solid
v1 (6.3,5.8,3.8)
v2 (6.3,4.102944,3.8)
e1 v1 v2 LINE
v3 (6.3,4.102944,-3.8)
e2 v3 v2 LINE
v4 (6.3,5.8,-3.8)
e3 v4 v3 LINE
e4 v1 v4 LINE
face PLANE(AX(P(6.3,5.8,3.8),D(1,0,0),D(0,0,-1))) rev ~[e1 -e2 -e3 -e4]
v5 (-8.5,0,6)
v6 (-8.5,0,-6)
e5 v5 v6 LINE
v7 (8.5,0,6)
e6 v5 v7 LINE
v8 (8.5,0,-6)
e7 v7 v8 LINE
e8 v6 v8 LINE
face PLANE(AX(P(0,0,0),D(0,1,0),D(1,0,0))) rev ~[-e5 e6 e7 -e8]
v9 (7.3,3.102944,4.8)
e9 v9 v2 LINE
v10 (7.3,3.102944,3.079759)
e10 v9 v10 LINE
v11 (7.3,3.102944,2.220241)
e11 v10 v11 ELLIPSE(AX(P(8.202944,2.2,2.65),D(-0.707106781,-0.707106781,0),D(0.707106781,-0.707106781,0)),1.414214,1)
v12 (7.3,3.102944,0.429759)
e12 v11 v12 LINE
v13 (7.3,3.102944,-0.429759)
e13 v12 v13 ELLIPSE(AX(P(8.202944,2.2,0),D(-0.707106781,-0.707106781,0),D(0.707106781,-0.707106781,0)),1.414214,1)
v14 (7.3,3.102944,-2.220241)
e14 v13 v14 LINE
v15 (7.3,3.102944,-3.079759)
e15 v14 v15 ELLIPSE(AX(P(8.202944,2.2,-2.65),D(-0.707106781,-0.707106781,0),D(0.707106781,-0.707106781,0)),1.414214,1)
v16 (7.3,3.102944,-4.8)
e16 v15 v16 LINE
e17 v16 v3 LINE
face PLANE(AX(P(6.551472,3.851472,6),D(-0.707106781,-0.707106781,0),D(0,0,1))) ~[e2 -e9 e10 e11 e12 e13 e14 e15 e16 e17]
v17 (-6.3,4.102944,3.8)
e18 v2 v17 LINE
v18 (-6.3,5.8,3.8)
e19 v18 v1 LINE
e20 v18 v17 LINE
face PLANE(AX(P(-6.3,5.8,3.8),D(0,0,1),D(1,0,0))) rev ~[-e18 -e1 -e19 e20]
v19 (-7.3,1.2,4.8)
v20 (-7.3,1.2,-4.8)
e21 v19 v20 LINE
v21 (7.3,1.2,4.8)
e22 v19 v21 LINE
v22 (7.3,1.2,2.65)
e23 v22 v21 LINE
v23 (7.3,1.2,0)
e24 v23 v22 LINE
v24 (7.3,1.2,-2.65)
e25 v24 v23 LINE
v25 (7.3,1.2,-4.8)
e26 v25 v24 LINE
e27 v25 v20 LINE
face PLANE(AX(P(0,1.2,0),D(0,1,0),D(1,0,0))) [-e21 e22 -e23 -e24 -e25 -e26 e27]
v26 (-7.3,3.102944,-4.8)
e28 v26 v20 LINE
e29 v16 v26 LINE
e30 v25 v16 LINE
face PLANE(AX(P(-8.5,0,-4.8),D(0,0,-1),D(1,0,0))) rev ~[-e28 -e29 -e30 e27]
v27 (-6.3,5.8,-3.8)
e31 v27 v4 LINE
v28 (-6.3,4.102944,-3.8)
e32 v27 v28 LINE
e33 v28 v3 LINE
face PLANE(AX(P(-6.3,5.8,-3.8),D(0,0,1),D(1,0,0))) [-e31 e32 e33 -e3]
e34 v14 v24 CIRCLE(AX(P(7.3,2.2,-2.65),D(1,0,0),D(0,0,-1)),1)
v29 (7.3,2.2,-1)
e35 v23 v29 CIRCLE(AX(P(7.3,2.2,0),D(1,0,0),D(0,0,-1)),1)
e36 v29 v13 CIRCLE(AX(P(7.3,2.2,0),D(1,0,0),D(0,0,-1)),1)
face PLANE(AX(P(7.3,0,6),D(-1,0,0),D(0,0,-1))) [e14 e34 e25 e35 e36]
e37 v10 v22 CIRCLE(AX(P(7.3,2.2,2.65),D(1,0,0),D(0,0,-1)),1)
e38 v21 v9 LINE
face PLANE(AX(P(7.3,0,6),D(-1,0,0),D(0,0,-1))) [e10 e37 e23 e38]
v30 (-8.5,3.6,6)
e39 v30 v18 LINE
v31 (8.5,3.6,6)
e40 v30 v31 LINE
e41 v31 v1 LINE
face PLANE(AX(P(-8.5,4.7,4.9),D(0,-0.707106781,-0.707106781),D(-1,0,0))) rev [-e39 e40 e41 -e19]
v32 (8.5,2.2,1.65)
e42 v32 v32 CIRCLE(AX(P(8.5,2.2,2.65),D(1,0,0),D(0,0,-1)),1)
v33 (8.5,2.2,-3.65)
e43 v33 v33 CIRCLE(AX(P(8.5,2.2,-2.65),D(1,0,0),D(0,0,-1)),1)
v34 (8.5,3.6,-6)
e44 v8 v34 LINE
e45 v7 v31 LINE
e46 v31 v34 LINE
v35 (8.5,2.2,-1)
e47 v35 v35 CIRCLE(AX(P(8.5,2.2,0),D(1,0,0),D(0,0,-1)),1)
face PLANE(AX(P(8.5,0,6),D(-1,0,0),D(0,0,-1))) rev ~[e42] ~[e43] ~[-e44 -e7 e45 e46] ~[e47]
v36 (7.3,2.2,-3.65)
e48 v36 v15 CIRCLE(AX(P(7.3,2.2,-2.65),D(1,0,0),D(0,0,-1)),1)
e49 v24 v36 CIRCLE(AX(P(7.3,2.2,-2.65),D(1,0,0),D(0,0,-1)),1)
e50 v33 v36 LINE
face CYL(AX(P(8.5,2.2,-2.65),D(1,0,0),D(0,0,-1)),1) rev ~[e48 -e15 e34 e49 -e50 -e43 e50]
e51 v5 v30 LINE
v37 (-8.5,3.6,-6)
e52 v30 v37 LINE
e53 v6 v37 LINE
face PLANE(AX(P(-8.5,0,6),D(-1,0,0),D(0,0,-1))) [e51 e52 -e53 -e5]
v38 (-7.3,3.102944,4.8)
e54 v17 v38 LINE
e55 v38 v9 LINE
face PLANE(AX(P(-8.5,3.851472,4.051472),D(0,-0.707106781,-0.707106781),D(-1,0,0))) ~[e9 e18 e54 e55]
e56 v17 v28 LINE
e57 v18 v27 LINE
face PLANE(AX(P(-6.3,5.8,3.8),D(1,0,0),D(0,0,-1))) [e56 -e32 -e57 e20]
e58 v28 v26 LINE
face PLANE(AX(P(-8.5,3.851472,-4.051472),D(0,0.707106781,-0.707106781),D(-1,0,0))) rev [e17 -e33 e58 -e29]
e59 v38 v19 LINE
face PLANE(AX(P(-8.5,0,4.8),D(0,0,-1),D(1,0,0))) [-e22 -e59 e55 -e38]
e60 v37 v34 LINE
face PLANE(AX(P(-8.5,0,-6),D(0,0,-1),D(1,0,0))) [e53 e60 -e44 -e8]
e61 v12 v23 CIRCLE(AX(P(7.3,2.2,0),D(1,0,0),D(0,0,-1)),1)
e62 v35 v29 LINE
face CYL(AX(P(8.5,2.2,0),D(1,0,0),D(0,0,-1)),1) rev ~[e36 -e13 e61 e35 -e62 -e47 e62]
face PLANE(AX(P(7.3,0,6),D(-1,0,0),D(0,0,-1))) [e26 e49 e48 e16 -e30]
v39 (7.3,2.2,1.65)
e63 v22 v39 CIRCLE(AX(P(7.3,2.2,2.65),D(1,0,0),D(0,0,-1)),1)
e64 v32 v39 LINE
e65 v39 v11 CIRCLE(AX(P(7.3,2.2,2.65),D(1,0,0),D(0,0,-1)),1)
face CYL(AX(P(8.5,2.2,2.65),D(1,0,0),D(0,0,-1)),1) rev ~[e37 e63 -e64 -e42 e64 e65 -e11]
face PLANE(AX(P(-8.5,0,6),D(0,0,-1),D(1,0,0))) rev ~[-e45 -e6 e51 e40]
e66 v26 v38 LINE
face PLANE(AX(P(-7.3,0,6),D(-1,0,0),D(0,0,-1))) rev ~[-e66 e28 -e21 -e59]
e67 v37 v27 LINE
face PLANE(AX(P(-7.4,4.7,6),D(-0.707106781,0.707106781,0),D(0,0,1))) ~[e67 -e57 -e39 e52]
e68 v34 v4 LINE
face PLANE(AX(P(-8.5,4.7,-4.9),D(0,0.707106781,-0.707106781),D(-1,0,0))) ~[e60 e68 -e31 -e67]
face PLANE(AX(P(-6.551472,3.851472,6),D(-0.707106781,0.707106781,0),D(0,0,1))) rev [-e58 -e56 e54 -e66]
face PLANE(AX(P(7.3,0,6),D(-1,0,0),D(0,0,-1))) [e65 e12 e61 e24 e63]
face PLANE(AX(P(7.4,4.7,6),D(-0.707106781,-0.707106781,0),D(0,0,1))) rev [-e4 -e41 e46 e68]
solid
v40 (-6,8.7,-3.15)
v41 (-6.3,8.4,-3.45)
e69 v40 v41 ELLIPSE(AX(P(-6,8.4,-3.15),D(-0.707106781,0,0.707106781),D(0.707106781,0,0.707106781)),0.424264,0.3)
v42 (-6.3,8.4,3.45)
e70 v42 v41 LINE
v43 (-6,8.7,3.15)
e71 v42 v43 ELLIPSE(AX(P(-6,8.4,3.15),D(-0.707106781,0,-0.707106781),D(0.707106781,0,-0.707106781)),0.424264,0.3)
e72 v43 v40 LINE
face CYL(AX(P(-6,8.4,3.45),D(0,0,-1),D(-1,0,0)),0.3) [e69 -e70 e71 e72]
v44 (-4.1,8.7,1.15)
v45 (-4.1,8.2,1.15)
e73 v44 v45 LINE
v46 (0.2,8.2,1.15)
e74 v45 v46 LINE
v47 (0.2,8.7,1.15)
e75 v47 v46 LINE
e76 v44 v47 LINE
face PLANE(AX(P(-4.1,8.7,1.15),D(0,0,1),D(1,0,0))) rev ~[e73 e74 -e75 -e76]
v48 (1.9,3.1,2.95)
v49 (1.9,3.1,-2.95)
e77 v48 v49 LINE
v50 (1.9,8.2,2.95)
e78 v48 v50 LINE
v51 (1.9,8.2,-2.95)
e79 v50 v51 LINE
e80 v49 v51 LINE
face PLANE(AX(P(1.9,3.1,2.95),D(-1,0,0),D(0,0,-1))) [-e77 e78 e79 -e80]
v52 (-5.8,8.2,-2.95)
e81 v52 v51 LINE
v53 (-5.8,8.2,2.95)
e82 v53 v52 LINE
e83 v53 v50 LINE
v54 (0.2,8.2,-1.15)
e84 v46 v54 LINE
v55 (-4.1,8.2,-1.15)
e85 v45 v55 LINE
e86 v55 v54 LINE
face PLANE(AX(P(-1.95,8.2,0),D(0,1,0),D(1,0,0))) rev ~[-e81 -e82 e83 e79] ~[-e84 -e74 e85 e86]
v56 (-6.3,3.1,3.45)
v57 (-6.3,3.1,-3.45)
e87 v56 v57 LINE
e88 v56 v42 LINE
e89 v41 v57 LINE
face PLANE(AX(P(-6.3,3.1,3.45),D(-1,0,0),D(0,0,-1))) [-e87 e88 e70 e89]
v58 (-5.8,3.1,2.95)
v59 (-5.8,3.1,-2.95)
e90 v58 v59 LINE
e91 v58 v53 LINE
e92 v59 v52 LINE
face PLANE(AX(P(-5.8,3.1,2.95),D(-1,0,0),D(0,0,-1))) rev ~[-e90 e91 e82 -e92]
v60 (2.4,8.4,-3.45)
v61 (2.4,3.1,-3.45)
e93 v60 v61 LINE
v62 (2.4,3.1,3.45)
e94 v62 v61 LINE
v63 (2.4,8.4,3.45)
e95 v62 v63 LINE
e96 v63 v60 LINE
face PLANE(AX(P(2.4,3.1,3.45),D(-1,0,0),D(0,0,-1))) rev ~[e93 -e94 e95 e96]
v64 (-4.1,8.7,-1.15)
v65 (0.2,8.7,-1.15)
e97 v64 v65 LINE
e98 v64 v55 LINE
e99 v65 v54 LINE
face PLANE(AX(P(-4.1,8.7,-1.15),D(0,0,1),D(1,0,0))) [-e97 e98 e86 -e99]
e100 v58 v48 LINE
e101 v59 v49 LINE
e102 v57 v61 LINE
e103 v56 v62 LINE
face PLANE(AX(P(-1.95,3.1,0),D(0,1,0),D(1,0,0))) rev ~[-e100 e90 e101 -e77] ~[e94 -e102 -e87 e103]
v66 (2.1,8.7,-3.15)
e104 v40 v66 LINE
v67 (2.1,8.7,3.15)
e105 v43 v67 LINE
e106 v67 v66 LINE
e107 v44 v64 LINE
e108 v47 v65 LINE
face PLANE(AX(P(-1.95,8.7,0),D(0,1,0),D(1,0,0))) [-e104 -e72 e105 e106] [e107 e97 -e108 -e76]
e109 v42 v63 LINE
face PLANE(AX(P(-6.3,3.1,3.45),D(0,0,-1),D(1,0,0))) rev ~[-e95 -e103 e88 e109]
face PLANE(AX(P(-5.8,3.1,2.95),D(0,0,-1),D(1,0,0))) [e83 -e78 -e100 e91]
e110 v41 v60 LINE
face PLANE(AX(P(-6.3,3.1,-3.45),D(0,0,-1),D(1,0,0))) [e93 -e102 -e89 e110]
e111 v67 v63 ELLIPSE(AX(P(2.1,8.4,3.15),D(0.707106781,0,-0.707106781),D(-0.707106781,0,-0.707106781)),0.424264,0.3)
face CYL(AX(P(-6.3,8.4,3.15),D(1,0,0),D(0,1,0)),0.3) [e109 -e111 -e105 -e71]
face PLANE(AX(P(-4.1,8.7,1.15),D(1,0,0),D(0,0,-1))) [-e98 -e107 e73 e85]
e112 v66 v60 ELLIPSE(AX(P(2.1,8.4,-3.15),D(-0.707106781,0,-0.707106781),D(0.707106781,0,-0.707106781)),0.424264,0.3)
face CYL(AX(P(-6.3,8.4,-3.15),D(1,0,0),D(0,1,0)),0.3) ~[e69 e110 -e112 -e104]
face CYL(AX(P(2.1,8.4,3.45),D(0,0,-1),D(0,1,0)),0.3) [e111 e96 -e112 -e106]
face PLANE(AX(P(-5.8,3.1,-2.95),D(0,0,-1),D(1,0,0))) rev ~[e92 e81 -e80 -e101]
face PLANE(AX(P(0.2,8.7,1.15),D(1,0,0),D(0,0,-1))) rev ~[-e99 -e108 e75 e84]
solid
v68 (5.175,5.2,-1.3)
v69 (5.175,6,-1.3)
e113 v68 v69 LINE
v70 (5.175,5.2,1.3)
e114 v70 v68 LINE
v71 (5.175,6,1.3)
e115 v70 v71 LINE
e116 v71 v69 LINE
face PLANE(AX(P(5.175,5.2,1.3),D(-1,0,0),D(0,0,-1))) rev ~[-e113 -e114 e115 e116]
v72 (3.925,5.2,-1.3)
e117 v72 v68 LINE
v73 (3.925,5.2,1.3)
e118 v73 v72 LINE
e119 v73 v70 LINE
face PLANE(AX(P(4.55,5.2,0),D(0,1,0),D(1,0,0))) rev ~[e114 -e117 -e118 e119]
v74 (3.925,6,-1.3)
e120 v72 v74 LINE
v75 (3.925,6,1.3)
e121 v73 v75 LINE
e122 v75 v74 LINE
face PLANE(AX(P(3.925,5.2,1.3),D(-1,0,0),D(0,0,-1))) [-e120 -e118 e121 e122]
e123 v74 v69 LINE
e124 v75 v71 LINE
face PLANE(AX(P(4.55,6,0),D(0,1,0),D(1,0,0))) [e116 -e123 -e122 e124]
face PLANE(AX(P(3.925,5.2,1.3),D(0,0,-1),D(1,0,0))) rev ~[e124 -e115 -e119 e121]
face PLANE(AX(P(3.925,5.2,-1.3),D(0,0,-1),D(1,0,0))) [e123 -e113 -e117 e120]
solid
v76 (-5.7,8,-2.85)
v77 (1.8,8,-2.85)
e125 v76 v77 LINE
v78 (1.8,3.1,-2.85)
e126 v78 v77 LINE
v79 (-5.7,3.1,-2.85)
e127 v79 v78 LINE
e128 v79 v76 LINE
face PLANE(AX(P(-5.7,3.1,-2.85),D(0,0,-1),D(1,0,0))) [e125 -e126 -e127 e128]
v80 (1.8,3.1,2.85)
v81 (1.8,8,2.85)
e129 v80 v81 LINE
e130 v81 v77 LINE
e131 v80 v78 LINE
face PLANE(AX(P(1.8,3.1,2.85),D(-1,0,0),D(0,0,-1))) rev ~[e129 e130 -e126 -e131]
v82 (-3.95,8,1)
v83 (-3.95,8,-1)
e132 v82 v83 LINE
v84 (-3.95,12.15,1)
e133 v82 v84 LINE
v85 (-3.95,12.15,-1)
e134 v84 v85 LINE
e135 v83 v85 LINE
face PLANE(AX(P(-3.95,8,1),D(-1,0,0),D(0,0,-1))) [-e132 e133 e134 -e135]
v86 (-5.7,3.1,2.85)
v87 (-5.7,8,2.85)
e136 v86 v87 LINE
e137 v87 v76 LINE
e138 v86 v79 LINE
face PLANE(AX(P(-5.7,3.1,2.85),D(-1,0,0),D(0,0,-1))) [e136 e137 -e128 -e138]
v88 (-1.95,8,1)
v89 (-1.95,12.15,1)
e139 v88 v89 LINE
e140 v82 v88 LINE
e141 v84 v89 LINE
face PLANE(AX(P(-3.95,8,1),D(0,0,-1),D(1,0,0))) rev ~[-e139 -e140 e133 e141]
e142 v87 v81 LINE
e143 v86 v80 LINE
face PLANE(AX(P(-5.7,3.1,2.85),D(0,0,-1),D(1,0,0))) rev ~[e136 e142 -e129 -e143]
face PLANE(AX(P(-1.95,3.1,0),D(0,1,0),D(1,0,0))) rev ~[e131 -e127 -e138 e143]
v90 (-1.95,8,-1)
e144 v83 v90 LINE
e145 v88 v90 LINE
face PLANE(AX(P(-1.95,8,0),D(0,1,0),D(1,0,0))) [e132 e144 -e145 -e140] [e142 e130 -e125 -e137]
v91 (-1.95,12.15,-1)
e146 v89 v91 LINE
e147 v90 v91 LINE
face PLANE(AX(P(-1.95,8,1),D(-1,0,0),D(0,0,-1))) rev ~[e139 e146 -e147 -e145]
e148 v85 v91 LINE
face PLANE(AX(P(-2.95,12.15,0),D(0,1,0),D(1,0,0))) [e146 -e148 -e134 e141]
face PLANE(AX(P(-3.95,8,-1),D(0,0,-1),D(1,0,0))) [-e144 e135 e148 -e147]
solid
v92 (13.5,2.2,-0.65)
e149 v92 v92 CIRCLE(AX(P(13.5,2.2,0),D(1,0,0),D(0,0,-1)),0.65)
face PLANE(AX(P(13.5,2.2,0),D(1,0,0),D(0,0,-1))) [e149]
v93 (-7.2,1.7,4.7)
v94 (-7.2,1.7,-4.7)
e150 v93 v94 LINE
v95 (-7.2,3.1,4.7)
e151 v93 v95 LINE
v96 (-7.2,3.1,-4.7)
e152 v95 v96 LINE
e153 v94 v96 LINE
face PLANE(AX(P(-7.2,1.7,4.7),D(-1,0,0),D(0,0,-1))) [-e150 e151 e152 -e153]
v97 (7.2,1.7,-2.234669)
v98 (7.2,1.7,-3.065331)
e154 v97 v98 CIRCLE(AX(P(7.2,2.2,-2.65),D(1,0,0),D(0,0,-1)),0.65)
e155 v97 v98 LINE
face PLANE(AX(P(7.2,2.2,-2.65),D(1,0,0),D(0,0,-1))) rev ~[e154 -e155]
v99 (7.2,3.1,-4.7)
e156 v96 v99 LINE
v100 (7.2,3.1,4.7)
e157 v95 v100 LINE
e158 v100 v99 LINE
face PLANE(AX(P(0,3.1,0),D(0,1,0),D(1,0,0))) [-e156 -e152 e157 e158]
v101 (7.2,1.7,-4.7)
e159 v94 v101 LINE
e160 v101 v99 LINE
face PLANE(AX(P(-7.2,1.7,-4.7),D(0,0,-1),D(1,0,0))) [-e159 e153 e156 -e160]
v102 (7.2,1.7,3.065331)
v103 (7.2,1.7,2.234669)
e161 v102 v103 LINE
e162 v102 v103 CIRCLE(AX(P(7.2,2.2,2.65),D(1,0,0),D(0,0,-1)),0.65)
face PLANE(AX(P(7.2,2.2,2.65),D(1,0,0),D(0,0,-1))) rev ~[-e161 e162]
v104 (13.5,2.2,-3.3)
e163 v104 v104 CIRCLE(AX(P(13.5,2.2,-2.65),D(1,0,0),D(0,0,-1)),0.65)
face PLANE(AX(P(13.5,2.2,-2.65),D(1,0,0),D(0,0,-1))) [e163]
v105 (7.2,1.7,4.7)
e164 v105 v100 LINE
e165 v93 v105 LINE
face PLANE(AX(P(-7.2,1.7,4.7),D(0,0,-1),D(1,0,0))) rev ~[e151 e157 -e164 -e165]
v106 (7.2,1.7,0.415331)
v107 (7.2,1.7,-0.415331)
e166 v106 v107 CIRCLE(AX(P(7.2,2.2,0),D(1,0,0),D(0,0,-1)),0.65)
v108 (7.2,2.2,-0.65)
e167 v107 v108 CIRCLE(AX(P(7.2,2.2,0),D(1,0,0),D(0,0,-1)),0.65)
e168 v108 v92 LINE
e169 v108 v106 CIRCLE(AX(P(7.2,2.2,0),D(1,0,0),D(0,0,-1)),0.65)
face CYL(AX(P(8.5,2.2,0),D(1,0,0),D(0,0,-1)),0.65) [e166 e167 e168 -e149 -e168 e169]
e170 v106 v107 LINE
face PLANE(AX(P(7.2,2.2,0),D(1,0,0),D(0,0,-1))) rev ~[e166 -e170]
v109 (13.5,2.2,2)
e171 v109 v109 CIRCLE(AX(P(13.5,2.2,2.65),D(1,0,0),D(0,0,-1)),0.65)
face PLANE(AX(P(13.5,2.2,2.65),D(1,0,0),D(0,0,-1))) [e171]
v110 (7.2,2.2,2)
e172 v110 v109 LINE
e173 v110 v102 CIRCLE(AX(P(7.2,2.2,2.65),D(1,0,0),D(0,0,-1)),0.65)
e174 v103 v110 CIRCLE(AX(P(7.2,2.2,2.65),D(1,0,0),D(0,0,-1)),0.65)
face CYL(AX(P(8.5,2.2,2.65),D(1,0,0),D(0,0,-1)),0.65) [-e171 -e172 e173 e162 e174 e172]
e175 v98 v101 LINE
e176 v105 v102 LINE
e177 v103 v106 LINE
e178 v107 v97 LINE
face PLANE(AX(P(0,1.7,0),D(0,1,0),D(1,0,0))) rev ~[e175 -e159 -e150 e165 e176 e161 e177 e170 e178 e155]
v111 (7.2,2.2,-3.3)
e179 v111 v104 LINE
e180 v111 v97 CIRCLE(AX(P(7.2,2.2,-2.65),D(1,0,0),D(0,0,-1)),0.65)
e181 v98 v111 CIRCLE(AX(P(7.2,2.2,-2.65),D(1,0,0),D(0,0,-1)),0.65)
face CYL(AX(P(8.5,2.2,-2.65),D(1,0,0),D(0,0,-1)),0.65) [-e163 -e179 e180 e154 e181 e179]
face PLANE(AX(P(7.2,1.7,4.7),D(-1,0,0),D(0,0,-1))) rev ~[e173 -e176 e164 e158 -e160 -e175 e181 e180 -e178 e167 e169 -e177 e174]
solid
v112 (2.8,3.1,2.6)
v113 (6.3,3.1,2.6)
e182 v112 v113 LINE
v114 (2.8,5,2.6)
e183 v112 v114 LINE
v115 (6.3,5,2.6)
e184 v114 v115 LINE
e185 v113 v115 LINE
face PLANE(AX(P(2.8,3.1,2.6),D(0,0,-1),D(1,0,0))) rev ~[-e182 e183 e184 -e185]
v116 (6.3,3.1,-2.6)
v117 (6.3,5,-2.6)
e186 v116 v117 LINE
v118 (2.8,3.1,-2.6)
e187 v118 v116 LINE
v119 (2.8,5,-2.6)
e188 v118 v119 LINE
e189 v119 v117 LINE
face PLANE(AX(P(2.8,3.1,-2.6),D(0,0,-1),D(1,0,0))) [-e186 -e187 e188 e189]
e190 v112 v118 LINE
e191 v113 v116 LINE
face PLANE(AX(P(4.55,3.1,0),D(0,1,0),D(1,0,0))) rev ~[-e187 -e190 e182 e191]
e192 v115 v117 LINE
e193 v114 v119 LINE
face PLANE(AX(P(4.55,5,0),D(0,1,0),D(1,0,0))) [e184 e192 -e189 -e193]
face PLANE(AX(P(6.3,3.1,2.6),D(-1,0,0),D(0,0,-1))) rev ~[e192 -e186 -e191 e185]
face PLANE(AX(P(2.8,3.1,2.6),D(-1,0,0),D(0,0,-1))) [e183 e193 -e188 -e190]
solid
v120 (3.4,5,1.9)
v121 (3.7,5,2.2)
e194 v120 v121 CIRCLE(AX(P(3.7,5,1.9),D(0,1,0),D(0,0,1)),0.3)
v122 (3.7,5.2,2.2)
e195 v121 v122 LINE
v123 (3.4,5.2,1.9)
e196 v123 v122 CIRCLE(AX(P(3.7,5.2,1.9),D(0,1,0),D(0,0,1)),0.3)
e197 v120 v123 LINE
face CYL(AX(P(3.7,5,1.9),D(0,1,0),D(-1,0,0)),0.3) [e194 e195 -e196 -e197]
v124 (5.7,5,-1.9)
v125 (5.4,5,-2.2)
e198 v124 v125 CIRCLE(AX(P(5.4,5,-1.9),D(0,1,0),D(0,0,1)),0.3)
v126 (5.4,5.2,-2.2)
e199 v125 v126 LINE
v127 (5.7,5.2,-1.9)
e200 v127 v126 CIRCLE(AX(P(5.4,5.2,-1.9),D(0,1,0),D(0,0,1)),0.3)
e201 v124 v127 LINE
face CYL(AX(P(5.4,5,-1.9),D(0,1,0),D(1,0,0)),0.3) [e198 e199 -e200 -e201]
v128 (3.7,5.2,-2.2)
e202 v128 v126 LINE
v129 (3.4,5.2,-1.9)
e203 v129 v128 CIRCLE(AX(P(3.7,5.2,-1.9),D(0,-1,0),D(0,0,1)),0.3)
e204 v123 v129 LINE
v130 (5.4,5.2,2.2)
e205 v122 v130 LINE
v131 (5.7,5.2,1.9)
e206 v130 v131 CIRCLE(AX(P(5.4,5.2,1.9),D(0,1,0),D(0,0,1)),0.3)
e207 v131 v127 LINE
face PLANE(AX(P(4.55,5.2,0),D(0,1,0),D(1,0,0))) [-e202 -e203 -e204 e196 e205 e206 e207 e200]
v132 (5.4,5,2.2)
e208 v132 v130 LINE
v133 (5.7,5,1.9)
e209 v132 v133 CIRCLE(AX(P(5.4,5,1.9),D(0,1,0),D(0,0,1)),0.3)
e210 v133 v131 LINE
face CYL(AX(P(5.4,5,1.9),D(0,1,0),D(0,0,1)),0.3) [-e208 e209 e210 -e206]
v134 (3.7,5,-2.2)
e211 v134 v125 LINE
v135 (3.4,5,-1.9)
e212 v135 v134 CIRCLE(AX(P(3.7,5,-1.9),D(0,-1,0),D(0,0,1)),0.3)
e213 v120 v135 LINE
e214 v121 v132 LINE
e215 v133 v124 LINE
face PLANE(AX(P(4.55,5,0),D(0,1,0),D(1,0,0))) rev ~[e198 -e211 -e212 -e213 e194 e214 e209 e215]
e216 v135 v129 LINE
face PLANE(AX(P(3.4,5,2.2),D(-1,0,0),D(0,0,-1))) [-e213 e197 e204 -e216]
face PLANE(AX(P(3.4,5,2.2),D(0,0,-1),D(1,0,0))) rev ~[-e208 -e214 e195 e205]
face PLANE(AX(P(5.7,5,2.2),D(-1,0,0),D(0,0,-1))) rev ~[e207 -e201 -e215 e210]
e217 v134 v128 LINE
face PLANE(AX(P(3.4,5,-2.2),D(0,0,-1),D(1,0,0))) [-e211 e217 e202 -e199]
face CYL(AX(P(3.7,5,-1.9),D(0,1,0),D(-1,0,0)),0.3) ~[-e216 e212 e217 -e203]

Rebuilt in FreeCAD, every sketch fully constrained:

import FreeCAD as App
import Part
import Sketcher

V = App.Vector


def edges_at(feature, points):
    """Names of the edges that pass closest to the given points."""
    edges = feature.Shape.Edges
    near = lambda p: min(range(len(edges)), key=lambda i: edges[i].distToShape(Part.Vertex(*p))[0])
    return sorted({f"Edge{near(p) + 1}" for p in points})


def faces_at(feature, points):
    """Names of the faces that lie closest to the given points."""
    faces = feature.Shape.Faces
    near = lambda p: min(range(len(faces)), key=lambda i: faces[i].distToShape(Part.Vertex(*p))[0])
    return sorted({f"Face{near(p) + 1}" for p in points})

doc = App.newDocument("Part")
params = doc.addObject("Spreadsheet::Sheet", "Params")
for row, (alias, value) in enumerate([
    ("sketch1_width", "17 mm"),
    ("sketch1_height", "12 mm"),
    ("pad1_length", "5.8 mm"),
    ("chamfer_size", "2.2 mm"),
    ("thickness_wall", "1.2 mm"),
    ("sketch2_width", "12.6 mm"),
    ("sketch2_height", "7.6 mm"),
    ("sketch3_diameter", "2 mm"),
    ("pocket2_length", "1.3 mm"),
    ("sketch4_width", "14.4 mm"),
    ("sketch4_height", "9.4 mm"),
    ("pad2_length", "1.4 mm"),
    ("sketch5_diameter", "1.3 mm"),
    ("pad3_length", "5 mm"),
    ("pad3_length2", "1.3 mm"),
    ("sketch6_width", "8.7 mm"),
    ("sketch6_width2", "7.7 mm"),
    ("sketch6_height", "6.9 mm"),
    ("sketch6_height2", "5.9 mm"),
    ("pad4_length", "5.6 mm"),
    ("sketch7_width", "8.7 mm"),
    ("sketch7_width2", "4.3 mm"),
    ("sketch7_height", "6.9 mm"),
    ("sketch7_height2", "2.3 mm"),
    ("pad5_length", "0.5 mm"),
    ("fillet_radius", "0.3 mm"),
    ("sketch8_width", "3.5 mm"),
    ("sketch8_height", "5.2 mm"),
    ("pad6_length", "1.9 mm"),
    ("sketch9_width", "2.3 mm"),
    ("sketch9_height", "4.4 mm"),
    ("pad7_length", "0.2 mm"),
    ("fillet2_radius", "0.3 mm"),
    ("sketch10_height", "2.6 mm"),
    ("sketch10_width", "1.25 mm"),
    ("pad8_length", "0.8 mm"),
    ("sketch11_width", "7.5 mm"),
    ("sketch11_height", "5.7 mm"),
    ("pad9_length", "4.9 mm"),
    ("sketch12_width", "2 mm"),
    ("pad10_length", "4.15 mm"),
], start=1):
    params.set(f"A{row}", alias)
    params.set(f"B{row}", "=" + value)
    params.setAlias(f"B{row}", alias)

body = doc.addObject("PartDesign::Body", "Body")

# Sketch on XZ plane
sketch1 = body.newObject("Sketcher::SketchObject", "Sketch")
sketch1.AttachmentSupport = (doc.getObject("XZ_Plane"), [""])
sketch1.MapMode = "FlatFace"
sketch1.addGeometry([
    Part.LineSegment(V(-8.5, -6, 0), V(-8.5, 6, 0)),
    Part.LineSegment(V(-8.5, 6, 0), V(8.5, 6, 0)),
    Part.LineSegment(V(8.5, 6, 0), V(8.5, -6, 0)),
    Part.LineSegment(V(8.5, -6, 0), V(-8.5, -6, 0)),
], False)
sketch1.addConstraint([
    Sketcher.Constraint("Coincident", 0, 2, 1, 1),
    Sketcher.Constraint("Coincident", 1, 2, 2, 1),
    Sketcher.Constraint("Coincident", 2, 2, 3, 1),
    Sketcher.Constraint("Coincident", 3, 2, 0, 1),
    Sketcher.Constraint("Vertical", 0),
    Sketcher.Constraint("Horizontal", 1),
    Sketcher.Constraint("Vertical", 2),
    Sketcher.Constraint("Horizontal", 3),
    Sketcher.Constraint("Symmetric", 0, 2, 2, 2, -1, 1),
    Sketcher.Constraint("DistanceX", 1, 1, 1, 2, 17.0),
    Sketcher.Constraint("DistanceY", 0, 1, 0, 2, 12.0),
])
sketch1.setExpression("Constraints[9]", "Params.sketch1_width")
sketch1.setExpression("Constraints[10]", "Params.sketch1_height")
pad1 = body.newObject("PartDesign::Pad", "Pad")
pad1.Profile = sketch1
pad1.setExpression("Length", "Params.pad1_length")
pad1.Reversed = True
doc.recompute()

chamfer = body.newObject("PartDesign::Chamfer", "Chamfer")
chamfer.Base = (pad1, edges_at(pad1, [
    (8.5, 5.8, 0),
    (0, 5.8, -6),
    (-8.5, 5.8, 0),
    (0, 5.8, 6),
]))
chamfer.setExpression("Size", "Params.chamfer_size")
doc.recompute()

thickness = body.newObject("PartDesign::Thickness", "Thickness")
thickness.Base = (chamfer, faces_at(chamfer, [(0, 5.8, 0)]))
thickness.setExpression("Value", "Params.thickness_wall")
thickness.Reversed = True
thickness.Join = "Intersection"

# Sketch on XZ plane
sketch2 = body.newObject("Sketcher::SketchObject", "Sketch001")
sketch2.AttachmentSupport = (doc.getObject("XZ_Plane"), [""])
sketch2.MapMode = "FlatFace"
sketch2.AttachmentOffset = App.Placement(V(0, 0, -5.8), App.Rotation())
sketch2.addGeometry([
    Part.LineSegment(V(-6.3, -3.8, 0), V(-6.3, 3.8, 0)),
    Part.LineSegment(V(-6.3, 3.8, 0), V(6.3, 3.8, 0)),
    Part.LineSegment(V(6.3, 3.8, 0), V(6.3, -3.8, 0)),
    Part.LineSegment(V(6.3, -3.8, 0), V(-6.3, -3.8, 0)),
], False)
sketch2.addConstraint([
    Sketcher.Constraint("Coincident", 0, 2, 1, 1),
    Sketcher.Constraint("Coincident", 1, 2, 2, 1),
    Sketcher.Constraint("Coincident", 2, 2, 3, 1),
    Sketcher.Constraint("Coincident", 3, 2, 0, 1),
    Sketcher.Constraint("Vertical", 0),
    Sketcher.Constraint("Horizontal", 1),
    Sketcher.Constraint("Vertical", 2),
    Sketcher.Constraint("Horizontal", 3),
    Sketcher.Constraint("Symmetric", 0, 2, 2, 2, -1, 1),
    Sketcher.Constraint("DistanceX", 1, 1, 1, 2, 12.6),
    Sketcher.Constraint("DistanceY", 0, 1, 0, 2, 7.6),
])
sketch2.setExpression("Constraints[9]", "Params.sketch2_width")
sketch2.setExpression("Constraints[10]", "Params.sketch2_height")
pocket1 = body.newObject("PartDesign::Pocket", "Pocket")
pocket1.Profile = sketch2
pocket1.Type = "UpToFirst"
pocket1.Reversed = True

# Sketch on YZ plane
sketch3 = body.newObject("Sketcher::SketchObject", "Sketch002")
sketch3.AttachmentSupport = (doc.getObject("YZ_Plane"), [""])
sketch3.MapMode = "FlatFace"
sketch3.AttachmentOffset = App.Placement(V(0, 0, 8.5), App.Rotation())
sketch3.addGeometry([
    Part.Circle(V(2.2, 2.65, 0), V(0, 0, 1), 1),
    Part.Circle(V(2.2, 0, 0), V(0, 0, 1), 1),
    Part.Circle(V(2.2, -2.65, 0), V(0, 0, 1), 1),
], False)
sketch3.addConstraint([
    Sketcher.Constraint("Equal", 0, 1),
    Sketcher.Constraint("Equal", 1, 2),
    Sketcher.Constraint("Symmetric", 0, 3, 2, 3, -1),
    Sketcher.Constraint("PointOnObject", 1, 3, -1),
    Sketcher.Constraint("Vertical", 0, 3, 1, 3),
    Sketcher.Constraint("Diameter", 0, 2.0),
    Sketcher.Constraint("DistanceX", -1, 1, 0, 3, 2.2),
    Sketcher.Constraint("DistanceY", 2, 3, 0, 3, 5.3),
])
sketch3.setExpression("Constraints[5]", "Params.sketch3_diameter")
pocket2 = body.newObject("PartDesign::Pocket", "Pocket001")
pocket2.Profile = sketch3
pocket2.setExpression("Length", "Params.pocket2_length")
body2 = doc.addObject("PartDesign::Body", "Body001")

# Sketch on XZ plane
sketch4 = body2.newObject("Sketcher::SketchObject", "Sketch003")
sketch4.AttachmentSupport = (doc.getObject("XZ_Plane001"), [""])
sketch4.MapMode = "FlatFace"
sketch4.AttachmentOffset = App.Placement(V(0, 0, -1.7), App.Rotation())
sketch4.addGeometry([
    Part.LineSegment(V(-7.2, -4.7, 0), V(-7.2, 4.7, 0)),
    Part.LineSegment(V(-7.2, 4.7, 0), V(7.2, 4.7, 0)),
    Part.LineSegment(V(7.2, 4.7, 0), V(7.2, -4.7, 0)),
    Part.LineSegment(V(7.2, -4.7, 0), V(-7.2, -4.7, 0)),
], False)
sketch4.addConstraint([
    Sketcher.Constraint("Coincident", 0, 2, 1, 1),
    Sketcher.Constraint("Coincident", 1, 2, 2, 1),
    Sketcher.Constraint("Coincident", 2, 2, 3, 1),
    Sketcher.Constraint("Coincident", 3, 2, 0, 1),
    Sketcher.Constraint("Vertical", 0),
    Sketcher.Constraint("Horizontal", 1),
    Sketcher.Constraint("Vertical", 2),
    Sketcher.Constraint("Horizontal", 3),
    Sketcher.Constraint("Symmetric", 0, 2, 2, 2, -1, 1),
    Sketcher.Constraint("DistanceX", 1, 1, 1, 2, 14.4),
    Sketcher.Constraint("DistanceY", 0, 1, 0, 2, 9.4),
])
sketch4.setExpression("Constraints[9]", "Params.sketch4_width")
sketch4.setExpression("Constraints[10]", "Params.sketch4_height")
pad2 = body2.newObject("PartDesign::Pad", "Pad001")
pad2.Profile = sketch4
pad2.setExpression("Length", "Params.pad2_length")
pad2.Reversed = True

# Sketch on YZ plane
sketch5 = body2.newObject("Sketcher::SketchObject", "Sketch004")
sketch5.AttachmentSupport = (doc.getObject("YZ_Plane001"), [""])
sketch5.MapMode = "FlatFace"
sketch5.AttachmentOffset = App.Placement(V(0, 0, 8.5), App.Rotation())
sketch5.addGeometry([
    Part.Circle(V(2.2, 2.65, 0), V(0, 0, 1), 0.65),
    Part.Circle(V(2.2, 0, 0), V(0, 0, 1), 0.65),
    Part.Circle(V(2.2, -2.65, 0), V(0, 0, 1), 0.65),
], False)
sketch5.addConstraint([
    Sketcher.Constraint("Equal", 0, 1),
    Sketcher.Constraint("Equal", 1, 2),
    Sketcher.Constraint("Symmetric", 0, 3, 2, 3, -1),
    Sketcher.Constraint("PointOnObject", 1, 3, -1),
    Sketcher.Constraint("Vertical", 0, 3, 1, 3),
    Sketcher.Constraint("Diameter", 0, 1.3),
    Sketcher.Constraint("DistanceX", -1, 1, 0, 3, 2.2),
    Sketcher.Constraint("DistanceY", 2, 3, 0, 3, 5.3),
])
sketch5.setExpression("Constraints[5]", "Params.sketch5_diameter")
pad3 = body2.newObject("PartDesign::Pad", "Pad002")
pad3.Profile = sketch5
pad3.Type = "TwoLengths"
pad3.setExpression("Length", "Params.pad3_length")
pad3.setExpression("Length2", "Params.pad3_length2")
body3 = doc.addObject("PartDesign::Body", "Body002")

# Sketch on XZ plane
sketch6 = body3.newObject("Sketcher::SketchObject", "Sketch005")
sketch6.AttachmentSupport = (doc.getObject("XZ_Plane002"), [""])
sketch6.MapMode = "FlatFace"
sketch6.AttachmentOffset = App.Placement(V(0, 0, -3.1), App.Rotation())
sketch6.addGeometry([
    Part.LineSegment(V(-6.3, -3.45, 0), V(-6.3, 3.45, 0)),  # 0
    Part.LineSegment(V(-6.3, 3.45, 0), V(2.4, 3.45, 0)),  # 1
    Part.LineSegment(V(2.4, 3.45, 0), V(2.4, -3.45, 0)),  # 2
    Part.LineSegment(V(2.4, -3.45, 0), V(-6.3, -3.45, 0)),  # 3
    Part.LineSegment(V(1.9, 2.95, 0), V(-5.8, 2.95, 0)),  # 4
    Part.LineSegment(V(-5.8, 2.95, 0), V(-5.8, -2.95, 0)),  # 5
    Part.LineSegment(V(-5.8, -2.95, 0), V(1.9, -2.95, 0)),  # 6
    Part.LineSegment(V(1.9, -2.95, 0), V(1.9, 2.95, 0)),  # 7
], False)
sketch6.addConstraint([
    Sketcher.Constraint("Coincident", 0, 2, 1, 1),
    Sketcher.Constraint("Coincident", 1, 2, 2, 1),
    Sketcher.Constraint("Coincident", 2, 2, 3, 1),
    Sketcher.Constraint("Coincident", 3, 2, 0, 1),
    Sketcher.Constraint("Coincident", 4, 2, 5, 1),
    Sketcher.Constraint("Coincident", 5, 2, 6, 1),
    Sketcher.Constraint("Coincident", 6, 2, 7, 1),
    Sketcher.Constraint("Coincident", 7, 2, 4, 1),
    Sketcher.Constraint("Vertical", 0),
    Sketcher.Constraint("Horizontal", 1),
    Sketcher.Constraint("Vertical", 2),
    Sketcher.Constraint("Horizontal", 3),
    Sketcher.Constraint("Horizontal", 4),
    Sketcher.Constraint("Vertical", 5),
    Sketcher.Constraint("Horizontal", 6),
    Sketcher.Constraint("Vertical", 7),
    Sketcher.Constraint("DistanceX", 1, 1, 1, 2, 8.7),
    Sketcher.Constraint("DistanceX", 4, 2, 4, 1, 7.7),
    Sketcher.Constraint("DistanceY", 0, 1, 0, 2, 6.9),
    Sketcher.Constraint("DistanceY", 5, 2, 5, 1, 5.9),
    Sketcher.Constraint("DistanceX", 0, 2, -1, 1, 6.3),
    Sketcher.Constraint("DistanceX", 4, 2, -1, 1, 5.8),
    Sketcher.Constraint("DistanceY", 4, 2, 0, 2, 0.5),
    Sketcher.Constraint("DistanceY", -1, 1, 0, 2, 3.45),
])
sketch6.setExpression("Constraints[16]", "Params.sketch6_width")
sketch6.setExpression("Constraints[17]", "Params.sketch6_width2")
sketch6.setExpression("Constraints[18]", "Params.sketch6_height")
sketch6.setExpression("Constraints[19]", "Params.sketch6_height2")
pad4 = body3.newObject("PartDesign::Pad", "Pad003")
pad4.Profile = sketch6
pad4.setExpression("Length", "Params.pad4_length")
pad4.Reversed = True

# Sketch on XZ plane
sketch7 = body3.newObject("Sketcher::SketchObject", "Sketch006")
sketch7.AttachmentSupport = (doc.getObject("XZ_Plane002"), [""])
sketch7.MapMode = "FlatFace"
sketch7.AttachmentOffset = App.Placement(V(0, 0, -8.7), App.Rotation())
sketch7.addGeometry([
    Part.LineSegment(V(-6.3, -3.45, 0), V(-6.3, 3.45, 0)),  # 0
    Part.LineSegment(V(-6.3, 3.45, 0), V(2.4, 3.45, 0)),  # 1
    Part.LineSegment(V(2.4, 3.45, 0), V(2.4, -3.45, 0)),  # 2
    Part.LineSegment(V(2.4, -3.45, 0), V(-6.3, -3.45, 0)),  # 3
    Part.LineSegment(V(0.2, 1.15, 0), V(-4.1, 1.15, 0)),  # 4
    Part.LineSegment(V(-4.1, 1.15, 0), V(-4.1, -1.15, 0)),  # 5
    Part.LineSegment(V(-4.1, -1.15, 0), V(0.2, -1.15, 0)),  # 6
    Part.LineSegment(V(0.2, -1.15, 0), V(0.2, 1.15, 0)),  # 7
], False)
sketch7.addConstraint([
    Sketcher.Constraint("Coincident", 0, 2, 1, 1),
    Sketcher.Constraint("Coincident", 1, 2, 2, 1),
    Sketcher.Constraint("Coincident", 2, 2, 3, 1),
    Sketcher.Constraint("Coincident", 3, 2, 0, 1),
    Sketcher.Constraint("Coincident", 4, 2, 5, 1),
    Sketcher.Constraint("Coincident", 5, 2, 6, 1),
    Sketcher.Constraint("Coincident", 6, 2, 7, 1),
    Sketcher.Constraint("Coincident", 7, 2, 4, 1),
    Sketcher.Constraint("Vertical", 0),
    Sketcher.Constraint("Horizontal", 1),
    Sketcher.Constraint("Vertical", 2),
    Sketcher.Constraint("Horizontal", 3),
    Sketcher.Constraint("Horizontal", 4),
    Sketcher.Constraint("Vertical", 5),
    Sketcher.Constraint("Horizontal", 6),
    Sketcher.Constraint("Vertical", 7),
    Sketcher.Constraint("DistanceX", 1, 1, 1, 2, 8.7),
    Sketcher.Constraint("DistanceX", 4, 2, 4, 1, 4.3),
    Sketcher.Constraint("DistanceY", 0, 1, 0, 2, 6.9),
    Sketcher.Constraint("DistanceY", 5, 2, 5, 1, 2.3),
    Sketcher.Constraint("DistanceX", 0, 2, -1, 1, 6.3),
    Sketcher.Constraint("DistanceX", 4, 2, -1, 1, 4.1),
    Sketcher.Constraint("DistanceY", 4, 2, 0, 2, 2.3),
    Sketcher.Constraint("DistanceY", -1, 1, 0, 2, 3.45),
])
sketch7.setExpression("Constraints[16]", "Params.sketch7_width")
sketch7.setExpression("Constraints[17]", "Params.sketch7_width2")
sketch7.setExpression("Constraints[18]", "Params.sketch7_height")
sketch7.setExpression("Constraints[19]", "Params.sketch7_height2")
pad5 = body3.newObject("PartDesign::Pad", "Pad004")
pad5.Profile = sketch7
pad5.setExpression("Length", "Params.pad5_length")
doc.recompute()

fillet = body3.newObject("PartDesign::Fillet", "Fillet")
fillet.Base = (pad5, edges_at(pad5, [
    (2.4, 8.7, 0),
    (-1.95, 8.7, -3.45),
    (-6.3, 8.7, 0),
    (-1.95, 8.7, 3.45),
]))
fillet.setExpression("Radius", "Params.fillet_radius")
body4 = doc.addObject("PartDesign::Body", "Body003")

# Sketch on XZ plane
sketch8 = body4.newObject("Sketcher::SketchObject", "Sketch007")
sketch8.AttachmentSupport = (doc.getObject("XZ_Plane003"), [""])
sketch8.MapMode = "FlatFace"
sketch8.AttachmentOffset = App.Placement(V(0, 0, -3.1), App.Rotation())
sketch8.addGeometry([
    Part.LineSegment(V(2.8, -2.6, 0), V(2.8, 2.6, 0)),
    Part.LineSegment(V(2.8, 2.6, 0), V(6.3, 2.6, 0)),
    Part.LineSegment(V(6.3, 2.6, 0), V(6.3, -2.6, 0)),
    Part.LineSegment(V(6.3, -2.6, 0), V(2.8, -2.6, 0)),
], False)
sketch8.addConstraint([
    Sketcher.Constraint("Coincident", 0, 2, 1, 1),
    Sketcher.Constraint("Coincident", 1, 2, 2, 1),
    Sketcher.Constraint("Coincident", 2, 2, 3, 1),
    Sketcher.Constraint("Coincident", 3, 2, 0, 1),
    Sketcher.Constraint("Vertical", 0),
    Sketcher.Constraint("Horizontal", 1),
    Sketcher.Constraint("Vertical", 2),
    Sketcher.Constraint("Horizontal", 3),
    Sketcher.Constraint("DistanceX", 1, 1, 1, 2, 3.5),
    Sketcher.Constraint("DistanceY", 0, 1, 0, 2, 5.2),
    Sketcher.Constraint("DistanceX", -1, 1, 0, 2, 2.8),
    Sketcher.Constraint("DistanceY", -1, 1, 0, 2, 2.6),
])
sketch8.setExpression("Constraints[8]", "Params.sketch8_width")
sketch8.setExpression("Constraints[9]", "Params.sketch8_height")
pad6 = body4.newObject("PartDesign::Pad", "Pad005")
pad6.Profile = sketch8
pad6.setExpression("Length", "Params.pad6_length")
pad6.Reversed = True
body5 = doc.addObject("PartDesign::Body", "Body004")

# Sketch on XZ plane
sketch9 = body5.newObject("Sketcher::SketchObject", "Sketch008")
sketch9.AttachmentSupport = (doc.getObject("XZ_Plane004"), [""])
sketch9.MapMode = "FlatFace"
sketch9.AttachmentOffset = App.Placement(V(0, 0, -5), App.Rotation())
sketch9.addGeometry([
    Part.LineSegment(V(3.4, -2.2, 0), V(3.4, 2.2, 0)),
    Part.LineSegment(V(3.4, 2.2, 0), V(5.7, 2.2, 0)),
    Part.LineSegment(V(5.7, 2.2, 0), V(5.7, -2.2, 0)),
    Part.LineSegment(V(5.7, -2.2, 0), V(3.4, -2.2, 0)),
], False)
sketch9.addConstraint([
    Sketcher.Constraint("Coincident", 0, 2, 1, 1),
    Sketcher.Constraint("Coincident", 1, 2, 2, 1),
    Sketcher.Constraint("Coincident", 2, 2, 3, 1),
    Sketcher.Constraint("Coincident", 3, 2, 0, 1),
    Sketcher.Constraint("Vertical", 0),
    Sketcher.Constraint("Horizontal", 1),
    Sketcher.Constraint("Vertical", 2),
    Sketcher.Constraint("Horizontal", 3),
    Sketcher.Constraint("DistanceX", 1, 1, 1, 2, 2.3),
    Sketcher.Constraint("DistanceY", 0, 1, 0, 2, 4.4),
    Sketcher.Constraint("DistanceX", -1, 1, 0, 2, 3.4),
    Sketcher.Constraint("DistanceY", -1, 1, 0, 2, 2.2),
])
sketch9.setExpression("Constraints[8]", "Params.sketch9_width")
sketch9.setExpression("Constraints[9]", "Params.sketch9_height")
pad7 = body5.newObject("PartDesign::Pad", "Pad006")
pad7.Profile = sketch9
pad7.setExpression("Length", "Params.pad7_length")
pad7.Reversed = True
doc.recompute()

fillet2 = body5.newObject("PartDesign::Fillet", "Fillet001")
fillet2.Base = (pad7, edges_at(pad7, [
    (3.4, 5.1, 2.2),
    (3.4, 5.1, -2.2),
    (5.7, 5.1, -2.2),
    (5.7, 5.1, 2.2),
]))
fillet2.setExpression("Radius", "Params.fillet2_radius")
body6 = doc.addObject("PartDesign::Body", "Body005")

# Sketch on XZ plane
sketch10 = body6.newObject("Sketcher::SketchObject", "Sketch009")
sketch10.AttachmentSupport = (doc.getObject("XZ_Plane005"), [""])
sketch10.MapMode = "FlatFace"
sketch10.AttachmentOffset = App.Placement(V(0, 0, -5.2), App.Rotation())
sketch10.addGeometry([
    Part.LineSegment(V(3.925, -1.3, 0), V(3.925, 1.3, 0)),
    Part.LineSegment(V(3.925, 1.3, 0), V(5.175, 1.3, 0)),
    Part.LineSegment(V(5.175, 1.3, 0), V(5.175, -1.3, 0)),
    Part.LineSegment(V(5.175, -1.3, 0), V(3.925, -1.3, 0)),
], False)
sketch10.addConstraint([
    Sketcher.Constraint("Coincident", 0, 2, 1, 1),
    Sketcher.Constraint("Coincident", 1, 2, 2, 1),
    Sketcher.Constraint("Coincident", 2, 2, 3, 1),
    Sketcher.Constraint("Coincident", 3, 2, 0, 1),
    Sketcher.Constraint("Vertical", 0),
    Sketcher.Constraint("Horizontal", 1),
    Sketcher.Constraint("Vertical", 2),
    Sketcher.Constraint("Horizontal", 3),
    Sketcher.Constraint("DistanceY", 0, 1, 0, 2, 2.6),
    Sketcher.Constraint("DistanceX", 1, 1, 1, 2, 1.25),
    Sketcher.Constraint("DistanceY", -1, 1, 0, 2, 1.3),
    Sketcher.Constraint("DistanceX", -1, 1, 0, 2, 3.925),
])
sketch10.setExpression("Constraints[8]", "Params.sketch10_height")
sketch10.setExpression("Constraints[9]", "Params.sketch10_width")
pad8 = body6.newObject("PartDesign::Pad", "Pad007")
pad8.Profile = sketch10
pad8.setExpression("Length", "Params.pad8_length")
pad8.Reversed = True
body7 = doc.addObject("PartDesign::Body", "Body006")

# Sketch on XZ plane
sketch11 = body7.newObject("Sketcher::SketchObject", "Sketch010")
sketch11.AttachmentSupport = (doc.getObject("XZ_Plane006"), [""])
sketch11.MapMode = "FlatFace"
sketch11.AttachmentOffset = App.Placement(V(0, 0, -3.1), App.Rotation())
sketch11.addGeometry([
    Part.LineSegment(V(-5.7, -2.85, 0), V(-5.7, 2.85, 0)),
    Part.LineSegment(V(-5.7, 2.85, 0), V(1.8, 2.85, 0)),
    Part.LineSegment(V(1.8, 2.85, 0), V(1.8, -2.85, 0)),
    Part.LineSegment(V(1.8, -2.85, 0), V(-5.7, -2.85, 0)),
], False)
sketch11.addConstraint([
    Sketcher.Constraint("Coincident", 0, 2, 1, 1),
    Sketcher.Constraint("Coincident", 1, 2, 2, 1),
    Sketcher.Constraint("Coincident", 2, 2, 3, 1),
    Sketcher.Constraint("Coincident", 3, 2, 0, 1),
    Sketcher.Constraint("Vertical", 0),
    Sketcher.Constraint("Horizontal", 1),
    Sketcher.Constraint("Vertical", 2),
    Sketcher.Constraint("Horizontal", 3),
    Sketcher.Constraint("DistanceX", 1, 1, 1, 2, 7.5),
    Sketcher.Constraint("DistanceY", 0, 1, 0, 2, 5.7),
    Sketcher.Constraint("DistanceX", 0, 2, -1, 1, 5.7),
    Sketcher.Constraint("DistanceY", -1, 1, 0, 2, 2.85),
])
sketch11.setExpression("Constraints[8]", "Params.sketch11_width")
sketch11.setExpression("Constraints[9]", "Params.sketch11_height")
pad9 = body7.newObject("PartDesign::Pad", "Pad008")
pad9.Profile = sketch11
pad9.setExpression("Length", "Params.pad9_length")
pad9.Reversed = True

# Sketch on XZ plane
sketch12 = body7.newObject("Sketcher::SketchObject", "Sketch011")
sketch12.AttachmentSupport = (doc.getObject("XZ_Plane006"), [""])
sketch12.MapMode = "FlatFace"
sketch12.AttachmentOffset = App.Placement(V(0, 0, -8), App.Rotation())
sketch12.addGeometry([
    Part.LineSegment(V(-3.95, -1, 0), V(-3.95, 1, 0)),
    Part.LineSegment(V(-3.95, 1, 0), V(-1.95, 1, 0)),
    Part.LineSegment(V(-1.95, 1, 0), V(-1.95, -1, 0)),
    Part.LineSegment(V(-1.95, -1, 0), V(-3.95, -1, 0)),
], False)
sketch12.addConstraint([
    Sketcher.Constraint("Coincident", 0, 2, 1, 1),
    Sketcher.Constraint("Coincident", 1, 2, 2, 1),
    Sketcher.Constraint("Coincident", 2, 2, 3, 1),
    Sketcher.Constraint("Coincident", 3, 2, 0, 1),
    Sketcher.Constraint("Vertical", 0),
    Sketcher.Constraint("Horizontal", 1),
    Sketcher.Constraint("Vertical", 2),
    Sketcher.Constraint("Horizontal", 3),
    Sketcher.Constraint("Equal", 3, 0),
    Sketcher.Constraint("DistanceX", 1, 1, 1, 2, 2.0),
    Sketcher.Constraint("DistanceY", -1, 1, 0, 2, 1.0),
    Sketcher.Constraint("DistanceX", 0, 2, -1, 1, 3.95),
])
sketch12.setExpression("Constraints[9]", "Params.sketch12_width")
pad10 = body7.newObject("PartDesign::Pad", "Pad009")
pad10.Profile = sketch12
pad10.setExpression("Length", "Params.pad10_length")
pad10.Reversed = True

doc.recompute()
